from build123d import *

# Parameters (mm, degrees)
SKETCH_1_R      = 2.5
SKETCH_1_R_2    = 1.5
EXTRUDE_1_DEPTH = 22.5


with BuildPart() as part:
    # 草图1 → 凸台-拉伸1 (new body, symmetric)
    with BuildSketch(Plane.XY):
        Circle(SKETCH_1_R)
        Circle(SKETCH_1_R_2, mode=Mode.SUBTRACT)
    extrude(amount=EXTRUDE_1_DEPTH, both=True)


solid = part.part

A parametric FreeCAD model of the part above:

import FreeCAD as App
import Part
import Sketcher

V = App.Vector
Q = App.Units.Quantity

doc = App.newDocument("Part")
params = doc.addObject("Spreadsheet::Sheet", "Params")
for row, (alias, value) in enumerate([
    ("sketch1_diameter", "5 mm"),
    ("sketch1_diameter2", "3 mm"),
    ("pad1_length", "45 mm"),
], start=1):
    params.set(f"A{row}", alias)
    params.set(f"B{row}", "=" + value)
    params.setAlias(f"B{row}", alias)

body = doc.addObject("PartDesign::Body", "Body")

sketch1 = body.newObject("Sketcher::SketchObject", "Sketch")
sketch1.AttachmentSupport = (doc.getObject("XY_Plane"), [""])
sketch1.MapMode = "FlatFace"
sketch1.addGeometry([
    Part.Circle(V(0, 0, 0), V(0, 0, 1), 2.5),
    Part.Circle(V(0, 0, 0), V(0, 0, 1), 1.5),
], False)
sketch1.addConstraint([
    Sketcher.Constraint("Coincident", 0, 3, -1, 1),
    Sketcher.Constraint("Coincident", 1, 3, -1, 1),
    Sketcher.Constraint("Diameter", 0, Q("5 mm")),
    Sketcher.Constraint("Diameter", 1, Q("3 mm")),
])
sketch1.setExpression("Constraints[2]", "Params.sketch1_diameter")
sketch1.setExpression("Constraints[3]", "Params.sketch1_diameter2")
pad1 = body.newObject("PartDesign::Pad", "Pad")
pad1.Profile = sketch1
pad1.setExpression("Length", "Params.pad1_length")
pad1.Midplane = True

doc.recompute()
